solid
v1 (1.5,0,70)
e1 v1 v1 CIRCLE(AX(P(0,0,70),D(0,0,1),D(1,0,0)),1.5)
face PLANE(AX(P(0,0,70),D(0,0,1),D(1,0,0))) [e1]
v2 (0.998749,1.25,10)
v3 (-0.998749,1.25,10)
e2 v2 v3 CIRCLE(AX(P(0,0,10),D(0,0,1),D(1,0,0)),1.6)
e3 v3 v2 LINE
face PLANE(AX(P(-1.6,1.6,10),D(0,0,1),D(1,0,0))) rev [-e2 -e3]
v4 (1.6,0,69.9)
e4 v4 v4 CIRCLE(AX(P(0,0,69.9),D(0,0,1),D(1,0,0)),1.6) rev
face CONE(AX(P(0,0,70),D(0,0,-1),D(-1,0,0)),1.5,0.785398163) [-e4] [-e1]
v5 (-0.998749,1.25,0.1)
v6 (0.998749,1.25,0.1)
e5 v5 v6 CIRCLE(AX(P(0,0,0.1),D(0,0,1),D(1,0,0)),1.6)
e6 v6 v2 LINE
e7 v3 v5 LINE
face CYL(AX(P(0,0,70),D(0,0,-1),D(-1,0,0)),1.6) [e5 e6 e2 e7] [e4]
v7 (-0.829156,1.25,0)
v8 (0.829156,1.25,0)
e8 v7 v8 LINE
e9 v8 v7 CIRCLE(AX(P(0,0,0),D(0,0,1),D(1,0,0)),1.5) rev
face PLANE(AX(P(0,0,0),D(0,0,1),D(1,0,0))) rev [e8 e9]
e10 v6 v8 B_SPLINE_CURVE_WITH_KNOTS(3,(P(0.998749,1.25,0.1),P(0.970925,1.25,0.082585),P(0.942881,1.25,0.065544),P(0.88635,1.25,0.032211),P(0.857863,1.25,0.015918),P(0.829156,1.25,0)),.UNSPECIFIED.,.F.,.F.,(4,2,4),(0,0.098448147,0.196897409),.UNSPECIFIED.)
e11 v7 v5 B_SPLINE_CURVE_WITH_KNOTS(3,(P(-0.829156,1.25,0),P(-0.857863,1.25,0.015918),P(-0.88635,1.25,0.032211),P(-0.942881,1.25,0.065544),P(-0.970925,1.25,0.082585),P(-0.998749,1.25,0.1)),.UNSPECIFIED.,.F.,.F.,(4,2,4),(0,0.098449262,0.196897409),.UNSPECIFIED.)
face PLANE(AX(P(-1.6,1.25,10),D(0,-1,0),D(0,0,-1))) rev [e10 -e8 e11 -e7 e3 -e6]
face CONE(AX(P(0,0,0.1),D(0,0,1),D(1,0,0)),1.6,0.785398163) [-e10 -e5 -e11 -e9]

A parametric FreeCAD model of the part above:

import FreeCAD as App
import Part
import Sketcher
from FreeCAD import Vector


def edges_at(feature, points):
    """Names of the edges that pass closest to the given points."""
    edges = feature.Shape.Edges
    near = lambda p: min(range(len(edges)), key=lambda i: edges[i].distToShape(Part.Vertex(*p))[0])
    return sorted({f"Edge{near(p) + 1}" for p in points})

doc = App.newDocument("Part")
body = doc.addObject("PartDesign::Body", "Body")

# Sketch on XY plane
sketch1 = body.newObject("Sketcher::SketchObject", "Sketch")
sketch1.AttachmentSupport = (doc.getObject("XY_Plane"), [""])
sketch1.MapMode = "FlatFace"
sketch1.addGeometry(Part.Circle(Vector(0, 0, 0), Vector(0, 0, 1), 1.6), False)
sketch1.addConstraint(Sketcher.Constraint("Coincident", 0, 3, -1, 1))
sketch1.addConstraint(Sketcher.Constraint("Diameter", 0, 3.2))
pad1 = body.newObject("PartDesign::Pad", "Pad")
pad1.Profile = sketch1
pad1.Length = 70

# Sketch on YZ plane
sketch2 = body.newObject("Sketcher::SketchObject", "Sketch001")
sketch2.AttachmentSupport = (doc.getObject("YZ_Plane"), [""])
sketch2.MapMode = "FlatFace"
sketch2.addGeometry(Part.LineSegment(Vector(1.6, 10, 0), Vector(1.25, 10, 0)), False)
sketch2.addGeometry(Part.LineSegment(Vector(1.25, 10, 0), Vector(1.25, 0, 0)), False)
sketch2.addGeometry(Part.LineSegment(Vector(1.25, 0, 0), Vector(1.6, 0, 0)), False)
sketch2.addGeometry(Part.LineSegment(Vector(1.6, 0, 0), Vector(1.6, 10, 0)), False)
sketch2.addConstraint(Sketcher.Constraint("Coincident", 0, 2, 1, 1))
sketch2.addConstraint(Sketcher.Constraint("Coincident", 1, 2, 2, 1))
sketch2.addConstraint(Sketcher.Constraint("Coincident", 2, 2, 3, 1))
sketch2.addConstraint(Sketcher.Constraint("Coincident", 3, 2, 0, 1))
sketch2.addConstraint(Sketcher.Constraint("Horizontal", 0))
sketch2.addConstraint(Sketcher.Constraint("Vertical", 1))
sketch2.addConstraint(Sketcher.Constraint("Horizontal", 2))
sketch2.addConstraint(Sketcher.Constraint("Vertical", 3))
sketch2.addConstraint(Sketcher.Constraint("PointOnObject", 1, 2, -1))
sketch2.addConstraint(Sketcher.Constraint("DistanceY", 1, 2, 1, 1, 10.0))
sketch2.addConstraint(Sketcher.Constraint("DistanceX", 0, 2, 0, 1, 0.35))
sketch2.addConstraint(Sketcher.Constraint("DistanceX", -1, 1, 2, 2, 1.6))
pocket1 = body.newObject("PartDesign::Pocket", "Pocket")
pocket1.Profile = sketch2
pocket1.Type = "ThroughAll"
pocket1.Midplane = True
doc.recompute()

chamfer = body.newObject("PartDesign::Chamfer", "Chamfer")
chamfer.Base = (pocket1, edges_at(pocket1, [(-1.6, 0, 70), (-0.694, -1.442, 0)]))
chamfer.Size = 0.1

doc.recompute()
